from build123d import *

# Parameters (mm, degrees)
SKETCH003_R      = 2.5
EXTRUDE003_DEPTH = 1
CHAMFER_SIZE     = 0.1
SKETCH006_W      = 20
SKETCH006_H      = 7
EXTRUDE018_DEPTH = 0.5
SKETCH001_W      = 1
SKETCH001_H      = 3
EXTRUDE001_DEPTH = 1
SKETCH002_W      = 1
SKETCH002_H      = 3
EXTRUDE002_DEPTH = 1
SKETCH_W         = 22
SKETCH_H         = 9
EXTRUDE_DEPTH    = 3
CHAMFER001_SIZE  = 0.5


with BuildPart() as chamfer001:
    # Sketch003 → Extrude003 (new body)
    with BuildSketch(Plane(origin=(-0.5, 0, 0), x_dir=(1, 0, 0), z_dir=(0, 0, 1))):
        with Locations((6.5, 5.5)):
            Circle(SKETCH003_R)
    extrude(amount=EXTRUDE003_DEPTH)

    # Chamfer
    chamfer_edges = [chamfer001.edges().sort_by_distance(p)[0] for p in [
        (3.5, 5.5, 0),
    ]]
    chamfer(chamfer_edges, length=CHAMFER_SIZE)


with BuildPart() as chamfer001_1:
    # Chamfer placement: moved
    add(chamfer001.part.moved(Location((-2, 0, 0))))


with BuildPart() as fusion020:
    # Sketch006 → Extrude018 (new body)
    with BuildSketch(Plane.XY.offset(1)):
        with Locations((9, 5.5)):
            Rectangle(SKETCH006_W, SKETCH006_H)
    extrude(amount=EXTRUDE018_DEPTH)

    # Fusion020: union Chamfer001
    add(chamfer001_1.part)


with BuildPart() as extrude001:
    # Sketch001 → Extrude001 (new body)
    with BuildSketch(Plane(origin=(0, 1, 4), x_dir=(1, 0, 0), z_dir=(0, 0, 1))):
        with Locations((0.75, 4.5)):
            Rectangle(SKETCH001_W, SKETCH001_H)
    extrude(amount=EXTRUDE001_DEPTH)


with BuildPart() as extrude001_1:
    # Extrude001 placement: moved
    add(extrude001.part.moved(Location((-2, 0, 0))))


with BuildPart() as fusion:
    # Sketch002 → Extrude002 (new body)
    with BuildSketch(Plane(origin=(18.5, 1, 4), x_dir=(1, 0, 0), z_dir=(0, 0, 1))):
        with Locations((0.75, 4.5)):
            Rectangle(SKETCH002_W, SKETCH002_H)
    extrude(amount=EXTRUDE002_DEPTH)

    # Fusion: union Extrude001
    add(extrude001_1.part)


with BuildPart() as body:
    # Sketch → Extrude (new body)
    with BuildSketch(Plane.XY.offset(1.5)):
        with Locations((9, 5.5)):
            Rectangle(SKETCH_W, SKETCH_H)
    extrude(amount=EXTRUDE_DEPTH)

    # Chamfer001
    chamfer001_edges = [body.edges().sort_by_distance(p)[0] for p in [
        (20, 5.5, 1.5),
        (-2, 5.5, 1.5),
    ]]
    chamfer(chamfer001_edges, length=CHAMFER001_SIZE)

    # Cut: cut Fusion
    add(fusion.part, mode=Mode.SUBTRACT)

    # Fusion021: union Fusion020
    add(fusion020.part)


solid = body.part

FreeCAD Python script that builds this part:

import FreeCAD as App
import Part
import Sketcher

V = App.Vector


def edges_at(feature, points):
    """Names of the edges that pass closest to the given points."""
    edges = feature.Shape.Edges
    near = lambda p: min(range(len(edges)), key=lambda i: edges[i].distToShape(Part.Vertex(*p))[0])
    return sorted({f"Edge{near(p) + 1}" for p in points})


def add_polygon(sketch, points):
    """Adds a closed chain of lines whose ends are joined by coincident constraints."""
    first, n = sketch.GeometryCount, len(points)
    for a, b in zip(points, points[1:] + points[:1]):
        sketch.addGeometry(Part.LineSegment(App.Vector(*a, 0), App.Vector(*b, 0)), False)
    for i in range(n):
        sketch.addConstraint(Sketcher.Constraint("Coincident", first + i, 2, first + (i + 1) % n, 1))

doc = App.newDocument("Part")
body = doc.addObject("PartDesign::Body", "Body")

# Sketch on XY plane
sketch1 = body.newObject("Sketcher::SketchObject", "Sketch")
sketch1.AttachmentSupport = (doc.getObject("XY_Plane"), [""])
sketch1.MapMode = "FlatFace"
sketch1.addGeometry(Part.Circle(V(6, 5.5, 0), V(0, 0, 1), 2.5), False)
sketch1.addConstraint([
    Sketcher.Constraint("Diameter", 0, 5.0),
    Sketcher.Constraint("DistanceX", -1, 1, 0, 3, 6.0),
    Sketcher.Constraint("DistanceY", -1, 1, 0, 3, 5.5),
])
pad1 = body.newObject("PartDesign::Pad", "Pad")
pad1.Profile = sketch1
pad1.Length = 1
doc.recompute()

chamfer = body.newObject("PartDesign::Chamfer", "Chamfer")
chamfer.Base = (pad1, edges_at(pad1, [(3.5, 5.5, 0)]))
chamfer.Size = 0.1
body2 = doc.addObject("PartDesign::Body", "Body001")
doc.recompute()

body.Placement = App.Placement(V(-2, 0, 0), App.Rotation(V(0, 0, 1), 0))
boolean = body2.newObject("PartDesign::Boolean", "Boolean")
boolean.Type = "Fuse"
boolean.addObjects([body])
body3 = doc.addObject("PartDesign::Body", "Body002")

# Sketch on XY plane
sketch2 = body3.newObject("Sketcher::SketchObject", "Sketch001")
sketch2.AttachmentSupport = (doc.getObject("XY_Plane002"), [""])
sketch2.MapMode = "FlatFace"
sketch2.AttachmentOffset = App.Placement(V(0, 0, 1), App.Rotation())
add_polygon(sketch2, [(-1, 9), (-1, 2), (19, 2), (19, 9)])  # lines 0-3
sketch2.addConstraint([
    Sketcher.Constraint("Vertical", 0),
    Sketcher.Constraint("Horizontal", 1),
    Sketcher.Constraint("Vertical", 2),
    Sketcher.Constraint("Horizontal", 3),
    Sketcher.Constraint("DistanceX", 1, 1, 1, 2, 20.0),
    Sketcher.Constraint("DistanceY", 0, 2, 0, 1, 7.0),
    Sketcher.Constraint("DistanceX", 0, 2, -1, 1, 1.0),
    Sketcher.Constraint("DistanceY", -1, 1, 0, 2, 2.0),
])
pad2 = body3.newObject("PartDesign::Pad", "Pad001")
pad2.Profile = sketch2
pad2.Length = 0.5
doc.recompute()

boolean2 = body3.newObject("PartDesign::Boolean", "Boolean001")
boolean2.Type = "Fuse"
boolean2.addObjects([body2])
body4 = doc.addObject("PartDesign::Body", "Body003")

# Sketch on XY plane
sketch3 = body4.newObject("Sketcher::SketchObject", "Sketch002")
sketch3.AttachmentSupport = (doc.getObject("XY_Plane003"), [""])
sketch3.MapMode = "FlatFace"
sketch3.AttachmentOffset = App.Placement(V(0, 0, 4), App.Rotation())
add_polygon(sketch3, [(0.2, 7), (0.2, 4), (1.2, 4), (1.2, 7)])  # lines 0-3
sketch3.addConstraint([
    Sketcher.Constraint("Vertical", 0),
    Sketcher.Constraint("Horizontal", 1),
    Sketcher.Constraint("Vertical", 2),
    Sketcher.Constraint("Horizontal", 3),
    Sketcher.Constraint("DistanceX", 1, 1, 1, 2, 1.0),
    Sketcher.Constraint("DistanceY", 0, 2, 0, 1, 3.0),
    Sketcher.Constraint("DistanceY", -1, 1, 0, 2, 4.0),
    Sketcher.Constraint("DistanceX", -1, 1, 0, 2, 0.25),
])
pad3 = body4.newObject("PartDesign::Pad", "Pad002")
pad3.Profile = sketch3
pad3.Length = 1
body5 = doc.addObject("PartDesign::Body", "Body004")
doc.recompute()

body4.Placement = App.Placement(V(-2, 0, 0), App.Rotation(V(0, 0, 1), 0))
boolean3 = body5.newObject("PartDesign::Boolean", "Boolean002")
boolean3.Type = "Fuse"
boolean3.addObjects([body4])
body6 = doc.addObject("PartDesign::Body", "Body005")
body6.AllowCompound = True

# Sketch on XY plane
sketch4 = body6.newObject("Sketcher::SketchObject", "Sketch003")
sketch4.AttachmentSupport = (doc.getObject("XY_Plane005"), [""])
sketch4.MapMode = "FlatFace"
sketch4.AttachmentOffset = App.Placement(V(0, 0, 4), App.Rotation())
add_polygon(sketch4, [(18.8, 7), (18.8, 4), (19.8, 4), (19.8, 7)])  # lines 0-3
sketch4.addConstraint([
    Sketcher.Constraint("Vertical", 0),
    Sketcher.Constraint("Horizontal", 1),
    Sketcher.Constraint("Vertical", 2),
    Sketcher.Constraint("Horizontal", 3),
    Sketcher.Constraint("DistanceX", 1, 1, 1, 2, 1.0),
    Sketcher.Constraint("DistanceY", 0, 2, 0, 1, 3.0),
    Sketcher.Constraint("DistanceY", -1, 1, 0, 2, 4.0),
    Sketcher.Constraint("DistanceX", -1, 1, 0, 2, 18.75),
])
pad4 = body6.newObject("PartDesign::Pad", "Pad003")
pad4.Profile = sketch4
pad4.Length = 1
doc.recompute()

boolean4 = body6.newObject("PartDesign::Boolean", "Boolean003")
boolean4.Type = "Fuse"
boolean4.addObjects([body5])
body7 = doc.addObject("PartDesign::Body", "Body006")

# Sketch on XY plane
sketch5 = body7.newObject("Sketcher::SketchObject", "Sketch004")
sketch5.AttachmentSupport = (doc.getObject("XY_Plane006"), [""])
sketch5.MapMode = "FlatFace"
sketch5.AttachmentOffset = App.Placement(V(0, 0, 1.5), App.Rotation())
add_polygon(sketch5, [(-2, 10), (-2, 1), (20, 1), (20, 10)])  # lines 0-3
sketch5.addConstraint([
    Sketcher.Constraint("Vertical", 0),
    Sketcher.Constraint("Horizontal", 1),
    Sketcher.Constraint("Vertical", 2),
    Sketcher.Constraint("Horizontal", 3),
    Sketcher.Constraint("DistanceX", 1, 1, 1, 2, 22.0),
    Sketcher.Constraint("DistanceY", 0, 2, 0, 1, 9.0),
    Sketcher.Constraint("DistanceX", 0, 2, -1, 1, 2.0),
    Sketcher.Constraint("DistanceY", -1, 1, 0, 2, 1.0),
])
pad5 = body7.newObject("PartDesign::Pad", "Pad004")
pad5.Profile = sketch5
pad5.Length = 3
doc.recompute()

chamfer2 = body7.newObject("PartDesign::Chamfer", "Chamfer001")
chamfer2.Base = (pad5, edges_at(pad5, [(20, 5.5, 1.5), (-2, 5.5, 1.5)]))
chamfer2.Size = 0.5
doc.recompute()

boolean5 = body7.newObject("PartDesign::Boolean", "Boolean004")
boolean5.Type = "Cut"
boolean5.addObjects([body6])
doc.recompute()

boolean6 = body7.newObject("PartDesign::Boolean", "Boolean005")
boolean6.Type = "Fuse"
boolean6.addObjects([body3])

doc.recompute()
